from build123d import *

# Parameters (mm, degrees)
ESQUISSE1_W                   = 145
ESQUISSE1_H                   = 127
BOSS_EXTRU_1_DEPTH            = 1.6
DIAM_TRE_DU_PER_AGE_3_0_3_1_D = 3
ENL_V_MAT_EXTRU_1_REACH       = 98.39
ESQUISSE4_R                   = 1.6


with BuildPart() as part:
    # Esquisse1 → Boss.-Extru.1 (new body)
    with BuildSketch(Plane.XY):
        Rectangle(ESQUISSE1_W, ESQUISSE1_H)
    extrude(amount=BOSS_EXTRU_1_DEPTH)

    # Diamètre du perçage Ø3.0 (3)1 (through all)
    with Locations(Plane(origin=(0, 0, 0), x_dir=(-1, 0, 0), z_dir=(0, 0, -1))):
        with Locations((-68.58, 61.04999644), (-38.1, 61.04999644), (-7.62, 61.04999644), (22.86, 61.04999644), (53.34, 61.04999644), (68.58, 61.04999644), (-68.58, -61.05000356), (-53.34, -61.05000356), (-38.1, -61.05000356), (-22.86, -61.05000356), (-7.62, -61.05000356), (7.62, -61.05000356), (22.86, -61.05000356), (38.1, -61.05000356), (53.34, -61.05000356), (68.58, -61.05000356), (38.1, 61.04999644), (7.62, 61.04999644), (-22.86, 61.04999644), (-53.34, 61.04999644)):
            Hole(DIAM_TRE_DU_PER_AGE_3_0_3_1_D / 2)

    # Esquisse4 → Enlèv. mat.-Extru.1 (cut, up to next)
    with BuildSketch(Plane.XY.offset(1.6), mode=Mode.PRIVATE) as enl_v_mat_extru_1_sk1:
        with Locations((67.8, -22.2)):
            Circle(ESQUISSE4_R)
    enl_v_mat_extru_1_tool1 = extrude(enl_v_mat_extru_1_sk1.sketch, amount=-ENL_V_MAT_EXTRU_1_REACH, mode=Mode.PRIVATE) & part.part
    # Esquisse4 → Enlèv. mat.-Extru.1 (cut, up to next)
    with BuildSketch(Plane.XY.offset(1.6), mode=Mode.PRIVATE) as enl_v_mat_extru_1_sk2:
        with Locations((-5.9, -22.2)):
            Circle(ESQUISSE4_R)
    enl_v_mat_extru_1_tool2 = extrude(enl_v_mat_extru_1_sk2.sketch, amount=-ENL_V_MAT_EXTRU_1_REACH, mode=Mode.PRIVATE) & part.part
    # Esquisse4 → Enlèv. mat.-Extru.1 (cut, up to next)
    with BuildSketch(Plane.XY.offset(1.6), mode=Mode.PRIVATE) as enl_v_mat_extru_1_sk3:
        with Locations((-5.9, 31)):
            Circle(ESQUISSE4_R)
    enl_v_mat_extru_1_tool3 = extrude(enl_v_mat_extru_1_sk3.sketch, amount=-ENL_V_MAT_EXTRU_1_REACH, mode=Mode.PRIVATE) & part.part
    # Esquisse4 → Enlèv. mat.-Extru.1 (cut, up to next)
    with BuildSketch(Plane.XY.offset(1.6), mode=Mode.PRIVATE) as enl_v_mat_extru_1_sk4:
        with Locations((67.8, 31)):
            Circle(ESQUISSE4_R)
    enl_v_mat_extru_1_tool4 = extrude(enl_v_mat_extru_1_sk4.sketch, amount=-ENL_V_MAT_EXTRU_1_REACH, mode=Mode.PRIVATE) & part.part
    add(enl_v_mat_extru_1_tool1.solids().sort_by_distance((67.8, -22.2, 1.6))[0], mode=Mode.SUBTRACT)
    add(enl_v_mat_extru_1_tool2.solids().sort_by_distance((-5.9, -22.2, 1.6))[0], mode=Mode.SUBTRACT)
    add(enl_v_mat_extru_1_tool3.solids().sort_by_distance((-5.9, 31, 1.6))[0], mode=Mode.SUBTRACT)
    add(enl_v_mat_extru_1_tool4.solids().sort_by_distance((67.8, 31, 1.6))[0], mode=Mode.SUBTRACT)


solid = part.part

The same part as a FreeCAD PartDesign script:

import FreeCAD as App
import Part
import Sketcher
from FreeCAD import Vector

doc = App.newDocument("Part")
body = doc.addObject("PartDesign::Body", "Body")

# Sketch on XY plane
sketch1 = body.newObject("Sketcher::SketchObject", "Sketch")
sketch1.AttachmentSupport = (doc.getObject("XY_Plane"), [""])
sketch1.MapMode = "FlatFace"
sketch1.addGeometry(Part.LineSegment(Vector(-72, 64, 0), Vector(-72, -64, 0)), False)
sketch1.addGeometry(Part.LineSegment(Vector(-72, -64, 0), Vector(72, -64, 0)), False)
sketch1.addGeometry(Part.LineSegment(Vector(72, -64, 0), Vector(72, 64, 0)), False)
sketch1.addGeometry(Part.LineSegment(Vector(72, 64, 0), Vector(-72, 64, 0)), False)
sketch1.addConstraint(Sketcher.Constraint("Coincident", 0, 2, 1, 1))
sketch1.addConstraint(Sketcher.Constraint("Coincident", 1, 2, 2, 1))
sketch1.addConstraint(Sketcher.Constraint("Coincident", 2, 2, 3, 1))
sketch1.addConstraint(Sketcher.Constraint("Coincident", 3, 2, 0, 1))
sketch1.addConstraint(Sketcher.Constraint("Vertical", 0))
sketch1.addConstraint(Sketcher.Constraint("Horizontal", 1))
sketch1.addConstraint(Sketcher.Constraint("Vertical", 2))
sketch1.addConstraint(Sketcher.Constraint("Horizontal", 3))
sketch1.addConstraint(Sketcher.Constraint("Symmetric", 0, 2, 2, 2, -1, 1))
sketch1.addConstraint(Sketcher.Constraint("DistanceX", 1, 1, 1, 2, 145.0))
sketch1.addConstraint(Sketcher.Constraint("DistanceY", 0, 2, 0, 1, 127.0))
pad1 = body.newObject("PartDesign::Pad", "Pad")
pad1.Profile = sketch1
pad1.Length = 1.6

# Sketch on XY plane
sketch2 = body.newObject("Sketcher::SketchObject", "Sketch001")
sketch2.AttachmentSupport = (doc.getObject("XY_Plane"), [""])
sketch2.MapMode = "FlatFace"
sketch2.addGeometry(Part.Circle(Vector(68.6, 61, 0), Vector(0, 0, 1), 1.5), False)
sketch2.addGeometry(Part.Circle(Vector(38.1, 61, 0), Vector(0, 0, 1), 1.5), False)
sketch2.addGeometry(Part.Circle(Vector(7.6, 61, 0), Vector(0, 0, 1), 1.5), False)
sketch2.addGeometry(Part.Circle(Vector(-22.9, 61, 0), Vector(0, 0, 1), 1.5), False)
sketch2.addGeometry(Part.Circle(Vector(-53.3, 61, 0), Vector(0, 0, 1), 1.5), False)
sketch2.addGeometry(Part.Circle(Vector(-68.6, 61, 0), Vector(0, 0, 1), 1.5), False)
sketch2.addGeometry(Part.Circle(Vector(68.6, -61.1, 0), Vector(0, 0, 1), 1.5), False)
sketch2.addGeometry(Part.Circle(Vector(53.3, -61.1, 0), Vector(0, 0, 1), 1.5), False)
sketch2.addGeometry(Part.Circle(Vector(38.1, -61.1, 0), Vector(0, 0, 1), 1.5), False)
sketch2.addGeometry(Part.Circle(Vector(22.9, -61.1, 0), Vector(0, 0, 1), 1.5), False)
sketch2.addGeometry(Part.Circle(Vector(7.6, -61.1, 0), Vector(0, 0, 1), 1.5), False)
sketch2.addGeometry(Part.Circle(Vector(-7.6, -61.1, 0), Vector(0, 0, 1), 1.5), False)
sketch2.addGeometry(Part.Circle(Vector(-22.9, -61.1, 0), Vector(0, 0, 1), 1.5), False)
sketch2.addGeometry(Part.Circle(Vector(-38.1, -61.1, 0), Vector(0, 0, 1), 1.5), False)
sketch2.addGeometry(Part.Circle(Vector(-53.3, -61.1, 0), Vector(0, 0, 1), 1.5), False)
sketch2.addGeometry(Part.Circle(Vector(-68.6, -61.1, 0), Vector(0, 0, 1), 1.5), False)
sketch2.addGeometry(Part.Circle(Vector(-38.1, 61, 0), Vector(0, 0, 1), 1.5), False)
sketch2.addGeometry(Part.Circle(Vector(-7.6, 61, 0), Vector(0, 0, 1), 1.5), False)
sketch2.addGeometry(Part.Circle(Vector(22.9, 61, 0), Vector(0, 0, 1), 1.5), False)
sketch2.addGeometry(Part.Circle(Vector(53.3, 61, 0), Vector(0, 0, 1), 1.5), False)
sketch2.addConstraint(Sketcher.Constraint("Equal", 0, 1))
sketch2.addConstraint(Sketcher.Constraint("Equal", 1, 2))
sketch2.addConstraint(Sketcher.Constraint("Equal", 2, 3))
sketch2.addConstraint(Sketcher.Constraint("Equal", 3, 4))
sketch2.addConstraint(Sketcher.Constraint("Equal", 4, 5))
sketch2.addConstraint(Sketcher.Constraint("Equal", 5, 6))
sketch2.addConstraint(Sketcher.Constraint("Equal", 6, 7))
sketch2.addConstraint(Sketcher.Constraint("Equal", 7, 8))
sketch2.addConstraint(Sketcher.Constraint("Equal", 8, 9))
sketch2.addConstraint(Sketcher.Constraint("Equal", 9, 10))
sketch2.addConstraint(Sketcher.Constraint("Equal", 10, 11))
sketch2.addConstraint(Sketcher.Constraint("Equal", 11, 12))
sketch2.addConstraint(Sketcher.Constraint("Equal", 12, 13))
sketch2.addConstraint(Sketcher.Constraint("Equal", 13, 14))
sketch2.addConstraint(Sketcher.Constraint("Equal", 14, 15))
sketch2.addConstraint(Sketcher.Constraint("Equal", 15, 16))
sketch2.addConstraint(Sketcher.Constraint("Equal", 16, 17))
sketch2.addConstraint(Sketcher.Constraint("Equal", 17, 18))
sketch2.addConstraint(Sketcher.Constraint("Equal", 18, 19))
sketch2.addConstraint(Sketcher.Constraint("Symmetric", 5, 3, 6, 3, -1, 1))
sketch2.addConstraint(Sketcher.Constraint("Symmetric", 4, 3, 7, 3, -1, 1))
sketch2.addConstraint(Sketcher.Constraint("Symmetric", 3, 3, 9, 3, -1, 1))
sketch2.addConstraint(Sketcher.Constraint("Symmetric", 2, 3, 11, 3, -1, 1))
sketch2.addConstraint(Sketcher.Constraint("Symmetric", 1, 3, 13, 3, -1, 1))
sketch2.addConstraint(Sketcher.Constraint("Symmetric", 0, 3, 15, 3, -1, 1))
sketch2.addConstraint(Sketcher.Constraint("Symmetric", 8, 3, 16, 3, -1, 1))
sketch2.addConstraint(Sketcher.Constraint("Symmetric", 10, 3, 17, 3, -1, 1))
sketch2.addConstraint(Sketcher.Constraint("Symmetric", 12, 3, 18, 3, -1, 1))
sketch2.addConstraint(Sketcher.Constraint("Symmetric", 14, 3, 19, 3, -1, 1))
sketch2.addConstraint(Sketcher.Constraint("Symmetric", 0, 3, 5, 3, -2))
sketch2.addConstraint(Sketcher.Constraint("Symmetric", 10, 3, 11, 3, -2))
sketch2.addConstraint(Sketcher.Constraint("Symmetric", 9, 3, 12, 3, -2))
sketch2.addConstraint(Sketcher.Constraint("Symmetric", 8, 3, 13, 3, -2))
sketch2.addConstraint(Sketcher.Constraint("Symmetric", 7, 3, 14, 3, -2))
sketch2.addConstraint(Sketcher.Constraint("Horizontal", 0, 3, 1, 3))
sketch2.addConstraint(Sketcher.Constraint("Horizontal", 1, 3, 2, 3))
sketch2.addConstraint(Sketcher.Constraint("Horizontal", 2, 3, 3, 3))
sketch2.addConstraint(Sketcher.Constraint("Horizontal", 3, 3, 4, 3))
sketch2.addConstraint(Sketcher.Constraint("Diameter", 0, 3.0))
sketch2.addConstraint(Sketcher.Constraint("DistanceX", -1, 1, 1, 3, 38.1))
sketch2.addConstraint(Sketcher.Constraint("DistanceX", 5, 3, 2, 3, 76.2))
sketch2.addConstraint(Sketcher.Constraint("DistanceY", 6, 3, 0, 3, 122.1))
sketch2.addConstraint(Sketcher.Constraint("DistanceX", 3, 3, 7, 3, 76.2))
sketch2.addConstraint(Sketcher.Constraint("DistanceX", -1, 1, 0, 3, 68.58))
sketch2.addConstraint(Sketcher.Constraint("DistanceX", 3, 3, -1, 1, 22.86))
doc.recompute()
hole = body.newObject("PartDesign::Hole", "Hole")
hole.Profile = sketch2
hole.ThreadType = "None"
hole.Diameter = 3
hole.DepthType = "ThroughAll"
hole.Reversed = True

# Sketch on XY plane
sketch3 = body.newObject("Sketcher::SketchObject", "Sketch002")
sketch3.AttachmentSupport = (doc.getObject("XY_Plane"), [""])
sketch3.MapMode = "FlatFace"
sketch3.AttachmentOffset = App.Placement(Vector(0, 0, 1.6), App.Rotation())
sketch3.addGeometry(Part.Circle(Vector(67.8, -22.2, 0), Vector(0, 0, 1), 1.6), False)
sketch3.addConstraint(Sketcher.Constraint("Diameter", 0, 3.2))
sketch3.addConstraint(Sketcher.Constraint("DistanceX", -1, 1, 0, 3, 67.8))
sketch3.addConstraint(Sketcher.Constraint("DistanceY", 0, 3, -1, 1, 22.2))
pocket1 = body.newObject("PartDesign::Pocket", "Pocket")
pocket1.Profile = sketch3
pocket1.Type = "UpToFirst"

# Sketch on XY plane
sketch4 = body.newObject("Sketcher::SketchObject", "Sketch003")
sketch4.AttachmentSupport = (doc.getObject("XY_Plane"), [""])
sketch4.MapMode = "FlatFace"
sketch4.AttachmentOffset = App.Placement(Vector(0, 0, 1.6), App.Rotation())
sketch4.addGeometry(Part.Circle(Vector(-5.9, -22.2, 0), Vector(0, 0, 1), 1.6), False)
sketch4.addConstraint(Sketcher.Constraint("Diameter", 0, 3.2))
sketch4.addConstraint(Sketcher.Constraint("DistanceX", 0, 3, -1, 1, 5.9))
sketch4.addConstraint(Sketcher.Constraint("DistanceY", 0, 3, -1, 1, 22.2))
pocket2 = body.newObject("PartDesign::Pocket", "Pocket001")
pocket2.Profile = sketch4
pocket2.Type = "UpToFirst"

# Sketch on XY plane
sketch5 = body.newObject("Sketcher::SketchObject", "Sketch004")
sketch5.AttachmentSupport = (doc.getObject("XY_Plane"), [""])
sketch5.MapMode = "FlatFace"
sketch5.AttachmentOffset = App.Placement(Vector(0, 0, 1.6), App.Rotation())
sketch5.addGeometry(Part.Circle(Vector(-5.9, 31, 0), Vector(0, 0, 1), 1.6), False)
sketch5.addConstraint(Sketcher.Constraint("Diameter", 0, 3.2))
sketch5.addConstraint(Sketcher.Constraint("DistanceY", -1, 1, 0, 3, 31.0))
sketch5.addConstraint(Sketcher.Constraint("DistanceX", 0, 3, -1, 1, 5.9))
pocket3 = body.newObject("PartDesign::Pocket", "Pocket002")
pocket3.Profile = sketch5
pocket3.Type = "UpToFirst"

# Sketch on XY plane
sketch6 = body.newObject("Sketcher::SketchObject", "Sketch005")
sketch6.AttachmentSupport = (doc.getObject("XY_Plane"), [""])
sketch6.MapMode = "FlatFace"
sketch6.AttachmentOffset = App.Placement(Vector(0, 0, 1.6), App.Rotation())
sketch6.addGeometry(Part.Circle(Vector(67.8, 31, 0), Vector(0, 0, 1), 1.6), False)
sketch6.addConstraint(Sketcher.Constraint("Diameter", 0, 3.2))
sketch6.addConstraint(Sketcher.Constraint("DistanceY", -1, 1, 0, 3, 31.0))
sketch6.addConstraint(Sketcher.Constraint("DistanceX", -1, 1, 0, 3, 67.8))
pocket4 = body.newObject("PartDesign::Pocket", "Pocket003")
pocket4.Profile = sketch6
pocket4.Type = "UpToFirst"

doc.recompute()
